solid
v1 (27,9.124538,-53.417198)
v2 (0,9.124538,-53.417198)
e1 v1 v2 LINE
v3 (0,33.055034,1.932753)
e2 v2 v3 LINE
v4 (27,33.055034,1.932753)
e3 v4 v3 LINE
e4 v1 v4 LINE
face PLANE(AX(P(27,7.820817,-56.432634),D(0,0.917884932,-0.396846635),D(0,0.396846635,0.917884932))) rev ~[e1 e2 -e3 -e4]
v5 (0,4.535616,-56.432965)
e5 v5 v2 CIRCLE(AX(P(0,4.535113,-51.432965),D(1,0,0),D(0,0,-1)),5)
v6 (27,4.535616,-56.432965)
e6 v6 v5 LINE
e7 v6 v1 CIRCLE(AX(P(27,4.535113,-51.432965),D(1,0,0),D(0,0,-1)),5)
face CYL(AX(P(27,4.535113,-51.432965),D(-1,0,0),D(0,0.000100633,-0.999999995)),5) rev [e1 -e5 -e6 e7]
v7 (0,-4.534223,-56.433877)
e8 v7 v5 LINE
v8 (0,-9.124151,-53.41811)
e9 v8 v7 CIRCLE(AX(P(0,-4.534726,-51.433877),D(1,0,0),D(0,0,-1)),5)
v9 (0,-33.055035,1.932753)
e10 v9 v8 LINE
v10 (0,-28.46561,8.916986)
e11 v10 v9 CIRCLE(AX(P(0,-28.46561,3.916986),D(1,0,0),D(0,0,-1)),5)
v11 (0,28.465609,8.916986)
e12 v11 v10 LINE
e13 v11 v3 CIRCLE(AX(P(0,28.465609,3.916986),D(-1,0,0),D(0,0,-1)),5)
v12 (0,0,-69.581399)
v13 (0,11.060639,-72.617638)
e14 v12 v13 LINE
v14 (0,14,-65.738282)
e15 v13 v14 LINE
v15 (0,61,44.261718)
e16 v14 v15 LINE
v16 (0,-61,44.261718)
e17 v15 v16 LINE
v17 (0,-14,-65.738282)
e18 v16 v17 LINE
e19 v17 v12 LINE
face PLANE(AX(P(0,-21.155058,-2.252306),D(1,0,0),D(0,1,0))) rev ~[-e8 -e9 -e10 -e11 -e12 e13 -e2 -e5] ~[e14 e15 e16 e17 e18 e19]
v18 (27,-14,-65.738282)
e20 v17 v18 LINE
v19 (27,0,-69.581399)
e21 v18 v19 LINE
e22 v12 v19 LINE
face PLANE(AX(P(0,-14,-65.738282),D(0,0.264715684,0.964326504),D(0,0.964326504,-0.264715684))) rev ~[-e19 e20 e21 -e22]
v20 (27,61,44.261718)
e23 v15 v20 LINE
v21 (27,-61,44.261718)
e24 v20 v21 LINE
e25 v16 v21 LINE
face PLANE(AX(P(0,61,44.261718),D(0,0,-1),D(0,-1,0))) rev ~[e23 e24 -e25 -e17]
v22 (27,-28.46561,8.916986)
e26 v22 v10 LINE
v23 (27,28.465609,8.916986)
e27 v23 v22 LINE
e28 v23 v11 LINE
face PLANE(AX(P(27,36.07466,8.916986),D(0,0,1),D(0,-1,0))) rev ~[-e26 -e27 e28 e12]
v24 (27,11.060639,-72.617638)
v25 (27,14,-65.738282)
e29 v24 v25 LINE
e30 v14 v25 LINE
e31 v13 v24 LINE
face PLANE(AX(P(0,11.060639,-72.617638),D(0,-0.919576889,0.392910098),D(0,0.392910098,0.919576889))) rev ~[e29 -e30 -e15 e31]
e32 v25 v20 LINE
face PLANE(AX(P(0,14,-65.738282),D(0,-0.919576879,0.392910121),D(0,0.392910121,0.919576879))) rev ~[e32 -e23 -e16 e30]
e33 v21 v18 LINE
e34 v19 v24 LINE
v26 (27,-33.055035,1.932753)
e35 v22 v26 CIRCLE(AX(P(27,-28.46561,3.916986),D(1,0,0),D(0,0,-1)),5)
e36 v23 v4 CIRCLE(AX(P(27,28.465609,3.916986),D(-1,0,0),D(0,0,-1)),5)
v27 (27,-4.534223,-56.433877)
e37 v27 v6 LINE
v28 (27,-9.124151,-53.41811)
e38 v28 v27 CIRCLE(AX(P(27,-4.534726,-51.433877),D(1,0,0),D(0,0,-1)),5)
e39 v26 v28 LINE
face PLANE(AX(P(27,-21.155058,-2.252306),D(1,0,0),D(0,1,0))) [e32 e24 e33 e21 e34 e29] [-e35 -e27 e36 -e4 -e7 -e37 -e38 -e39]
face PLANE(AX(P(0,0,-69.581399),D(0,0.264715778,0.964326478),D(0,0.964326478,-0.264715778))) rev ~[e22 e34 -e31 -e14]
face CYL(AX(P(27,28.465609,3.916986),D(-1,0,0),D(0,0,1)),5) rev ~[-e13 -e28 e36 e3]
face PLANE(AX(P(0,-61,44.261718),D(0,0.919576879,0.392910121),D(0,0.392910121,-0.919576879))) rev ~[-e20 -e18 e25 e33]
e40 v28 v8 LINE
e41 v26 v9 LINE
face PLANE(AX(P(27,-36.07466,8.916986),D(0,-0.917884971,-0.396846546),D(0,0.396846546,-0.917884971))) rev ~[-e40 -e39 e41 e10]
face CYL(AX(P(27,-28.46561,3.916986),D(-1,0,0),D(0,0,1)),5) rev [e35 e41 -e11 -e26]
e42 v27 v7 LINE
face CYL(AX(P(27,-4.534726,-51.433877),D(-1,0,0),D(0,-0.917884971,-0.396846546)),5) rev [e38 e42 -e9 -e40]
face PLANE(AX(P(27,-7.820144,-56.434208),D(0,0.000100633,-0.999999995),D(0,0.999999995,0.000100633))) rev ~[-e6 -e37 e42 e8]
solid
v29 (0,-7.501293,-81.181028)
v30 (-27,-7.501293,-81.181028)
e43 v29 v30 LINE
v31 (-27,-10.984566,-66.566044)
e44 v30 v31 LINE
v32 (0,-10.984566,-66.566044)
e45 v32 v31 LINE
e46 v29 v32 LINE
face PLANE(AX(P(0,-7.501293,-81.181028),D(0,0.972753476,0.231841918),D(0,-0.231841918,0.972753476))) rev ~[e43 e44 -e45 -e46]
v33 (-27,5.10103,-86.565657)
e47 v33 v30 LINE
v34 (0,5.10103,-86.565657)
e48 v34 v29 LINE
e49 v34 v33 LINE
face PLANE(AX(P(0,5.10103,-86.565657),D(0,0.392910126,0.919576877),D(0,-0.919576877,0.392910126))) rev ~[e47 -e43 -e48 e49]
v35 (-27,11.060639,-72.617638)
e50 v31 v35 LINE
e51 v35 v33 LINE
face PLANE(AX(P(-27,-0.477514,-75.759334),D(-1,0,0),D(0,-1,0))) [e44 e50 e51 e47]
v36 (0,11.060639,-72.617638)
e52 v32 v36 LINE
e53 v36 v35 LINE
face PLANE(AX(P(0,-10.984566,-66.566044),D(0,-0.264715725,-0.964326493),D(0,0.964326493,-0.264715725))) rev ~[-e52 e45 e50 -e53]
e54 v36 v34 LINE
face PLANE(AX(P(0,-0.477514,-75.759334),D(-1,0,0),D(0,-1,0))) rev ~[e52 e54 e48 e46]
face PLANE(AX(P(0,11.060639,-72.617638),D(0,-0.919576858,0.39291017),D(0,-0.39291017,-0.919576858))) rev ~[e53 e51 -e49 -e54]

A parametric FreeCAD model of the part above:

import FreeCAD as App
import Part
import Sketcher


def edges_at(feature, points):
    """Names of the edges that pass closest to the given points."""
    edges = feature.Shape.Edges
    near = lambda p: min(range(len(edges)), key=lambda i: edges[i].distToShape(Part.Vertex(*p))[0])
    return sorted({f"Edge{near(p) + 1}" for p in points})


def add_polygon(sketch, points):
    """Adds a closed chain of lines whose ends are joined by coincident constraints."""
    first, n = sketch.GeometryCount, len(points)
    for a, b in zip(points, points[1:] + points[:1]):
        sketch.addGeometry(Part.LineSegment(App.Vector(*a, 0), App.Vector(*b, 0)), False)
    for i in range(n):
        sketch.addConstraint(Sketcher.Constraint("Coincident", first + i, 2, first + (i + 1) % n, 1))

doc = App.newDocument("Part")
params = doc.addObject("Spreadsheet::Sheet", "Params")
for row, (alias, value) in enumerate([
    ("sketch1_width", "122 mm"),
    ("pad1_length", "27 mm"),
    ("pocket1_length", "30 mm"),
    ("fillet_radius", "5 mm"),
    ("pad2_length", "27 mm"),
], start=1):
    params.set(f"A{row}", alias)
    params.set(f"B{row}", "=" + value)
    params.setAlias(f"B{row}", alias)

body = doc.addObject("PartDesign::Body", "Body")

# Sketch on YZ plane
sketch1 = body.newObject("Sketcher::SketchObject", "Sketch")
sketch1.AttachmentSupport = (doc.getObject("YZ_Plane"), [""])
sketch1.MapMode = "FlatFace"
add_polygon(sketch1, [(-61, 44.261718), (-14, -65.738282), (0, -69.581399), (11.060639, -72.617638), (14, -65.738282), (61, 44.261718)])  # lines 0-5
sketch1.addConstraint([
    Sketcher.Constraint("Horizontal", 5),
    Sketcher.Constraint("Symmetric", 0, 2, 3, 2, -2),
    Sketcher.Constraint("PointOnObject", 1, 2, -2),
    Sketcher.Constraint("Parallel", 1, 2),
    Sketcher.Constraint("Parallel", 3, 4),
    Sketcher.Constraint("Equal", 0, 4),
    Sketcher.Constraint("DistanceX", 5, 2, 5, 1, 122.0),
    Sketcher.Constraint("DistanceX", 0, 2, -1, 1, 14.0),
    Sketcher.Constraint("DistanceY", 3, 2, 4, 2, 110.0),
    Sketcher.Constraint("Distance", 3, 7.481001),
    Sketcher.Constraint("DistanceY", 1, 2, -1, 1, 69.581399),
])
sketch1.setExpression("Constraints[12]", "Params.sketch1_width")
pad1 = body.newObject("PartDesign::Pad", "Pad")
pad1.Profile = sketch1
pad1.setExpression("Length", "Params.pad1_length")

# Sketch on YZ plane
sketch2 = body.newObject("Sketcher::SketchObject", "Sketch001")
sketch2.AttachmentSupport = (doc.getObject("YZ_Plane"), [""])
sketch2.MapMode = "FlatFace"
sketch2.AttachmentOffset = App.Placement(App.Vector(0, 0, 27), App.Rotation())
add_polygon(sketch2, [(36.07466, 8.916986), (-36.07466, 8.916986), (-7.820144, -56.434208), (7.820817, -56.432634)])  # lines 0-3
sketch2.addConstraint([
    Sketcher.Constraint("Horizontal", 0),
    Sketcher.Constraint("DistanceX", 0, 2, 0, 1, 72.14932),
    Sketcher.Constraint("Distance", 2, 15.640961),
    Sketcher.Constraint("DistanceX", 0, 2, -1, 1, 36.07466),
    Sketcher.Constraint("DistanceY", 2, 2, 0, 2, 65.34962),
    Sketcher.Constraint("Distance", 1, 71.197586),
    Sketcher.Constraint("Distance", 3, 71.195874),
    Sketcher.Constraint("DistanceY", -1, 1, 0, 2, 8.916986),
])
pocket1 = body.newObject("PartDesign::Pocket", "Pocket")
pocket1.Profile = sketch2
pocket1.setExpression("Length", "Params.pocket1_length")
doc.recompute()

fillet = body.newObject("PartDesign::Fillet", "Fillet")
fillet.Base = (pocket1, edges_at(pocket1, [
    (13.5, -36.075, 8.917),
    (13.5, 36.075, 8.917),
    (13.5, -7.82, -56.434),
    (13.5, 7.821, -56.433),
]))
fillet.setExpression("Radius", "Params.fillet_radius")
body2 = doc.addObject("PartDesign::Body", "Body001")

# Sketch on YZ plane
sketch3 = body2.newObject("Sketcher::SketchObject", "Sketch002")
sketch3.AttachmentSupport = (doc.getObject("YZ_Plane001"), [""])
sketch3.MapMode = "FlatFace"
add_polygon(sketch3, [(-10.984566, -66.566044), (11.060639, -72.617638), (5.10103, -86.565657), (-7.501293, -81.181028)])  # lines 0-3
sketch3.addConstraint([
    Sketcher.Constraint("Perpendicular", 1, 2),
    Sketcher.Constraint("Distance", 2, 13.70448),
    Sketcher.Constraint("DistanceX", -1, 1, 0, 2, 11.060639),
    Sketcher.Constraint("DistanceY", 0, 2, -1, 1, 72.617638),
    Sketcher.Constraint("DistanceX", -1, 1, 1, 2, 5.10103),
    Sketcher.Constraint("DistanceY", 1, 2, 0, 2, 13.948019),
    Sketcher.Constraint("Distance", 0, 22.860727),
    Sketcher.Constraint("Distance", 3, 15.024345),
])
pad2 = body2.newObject("PartDesign::Pad", "Pad001")
pad2.Profile = sketch3
pad2.setExpression("Length", "Params.pad2_length")
pad2.Reversed = True

doc.recompute()
